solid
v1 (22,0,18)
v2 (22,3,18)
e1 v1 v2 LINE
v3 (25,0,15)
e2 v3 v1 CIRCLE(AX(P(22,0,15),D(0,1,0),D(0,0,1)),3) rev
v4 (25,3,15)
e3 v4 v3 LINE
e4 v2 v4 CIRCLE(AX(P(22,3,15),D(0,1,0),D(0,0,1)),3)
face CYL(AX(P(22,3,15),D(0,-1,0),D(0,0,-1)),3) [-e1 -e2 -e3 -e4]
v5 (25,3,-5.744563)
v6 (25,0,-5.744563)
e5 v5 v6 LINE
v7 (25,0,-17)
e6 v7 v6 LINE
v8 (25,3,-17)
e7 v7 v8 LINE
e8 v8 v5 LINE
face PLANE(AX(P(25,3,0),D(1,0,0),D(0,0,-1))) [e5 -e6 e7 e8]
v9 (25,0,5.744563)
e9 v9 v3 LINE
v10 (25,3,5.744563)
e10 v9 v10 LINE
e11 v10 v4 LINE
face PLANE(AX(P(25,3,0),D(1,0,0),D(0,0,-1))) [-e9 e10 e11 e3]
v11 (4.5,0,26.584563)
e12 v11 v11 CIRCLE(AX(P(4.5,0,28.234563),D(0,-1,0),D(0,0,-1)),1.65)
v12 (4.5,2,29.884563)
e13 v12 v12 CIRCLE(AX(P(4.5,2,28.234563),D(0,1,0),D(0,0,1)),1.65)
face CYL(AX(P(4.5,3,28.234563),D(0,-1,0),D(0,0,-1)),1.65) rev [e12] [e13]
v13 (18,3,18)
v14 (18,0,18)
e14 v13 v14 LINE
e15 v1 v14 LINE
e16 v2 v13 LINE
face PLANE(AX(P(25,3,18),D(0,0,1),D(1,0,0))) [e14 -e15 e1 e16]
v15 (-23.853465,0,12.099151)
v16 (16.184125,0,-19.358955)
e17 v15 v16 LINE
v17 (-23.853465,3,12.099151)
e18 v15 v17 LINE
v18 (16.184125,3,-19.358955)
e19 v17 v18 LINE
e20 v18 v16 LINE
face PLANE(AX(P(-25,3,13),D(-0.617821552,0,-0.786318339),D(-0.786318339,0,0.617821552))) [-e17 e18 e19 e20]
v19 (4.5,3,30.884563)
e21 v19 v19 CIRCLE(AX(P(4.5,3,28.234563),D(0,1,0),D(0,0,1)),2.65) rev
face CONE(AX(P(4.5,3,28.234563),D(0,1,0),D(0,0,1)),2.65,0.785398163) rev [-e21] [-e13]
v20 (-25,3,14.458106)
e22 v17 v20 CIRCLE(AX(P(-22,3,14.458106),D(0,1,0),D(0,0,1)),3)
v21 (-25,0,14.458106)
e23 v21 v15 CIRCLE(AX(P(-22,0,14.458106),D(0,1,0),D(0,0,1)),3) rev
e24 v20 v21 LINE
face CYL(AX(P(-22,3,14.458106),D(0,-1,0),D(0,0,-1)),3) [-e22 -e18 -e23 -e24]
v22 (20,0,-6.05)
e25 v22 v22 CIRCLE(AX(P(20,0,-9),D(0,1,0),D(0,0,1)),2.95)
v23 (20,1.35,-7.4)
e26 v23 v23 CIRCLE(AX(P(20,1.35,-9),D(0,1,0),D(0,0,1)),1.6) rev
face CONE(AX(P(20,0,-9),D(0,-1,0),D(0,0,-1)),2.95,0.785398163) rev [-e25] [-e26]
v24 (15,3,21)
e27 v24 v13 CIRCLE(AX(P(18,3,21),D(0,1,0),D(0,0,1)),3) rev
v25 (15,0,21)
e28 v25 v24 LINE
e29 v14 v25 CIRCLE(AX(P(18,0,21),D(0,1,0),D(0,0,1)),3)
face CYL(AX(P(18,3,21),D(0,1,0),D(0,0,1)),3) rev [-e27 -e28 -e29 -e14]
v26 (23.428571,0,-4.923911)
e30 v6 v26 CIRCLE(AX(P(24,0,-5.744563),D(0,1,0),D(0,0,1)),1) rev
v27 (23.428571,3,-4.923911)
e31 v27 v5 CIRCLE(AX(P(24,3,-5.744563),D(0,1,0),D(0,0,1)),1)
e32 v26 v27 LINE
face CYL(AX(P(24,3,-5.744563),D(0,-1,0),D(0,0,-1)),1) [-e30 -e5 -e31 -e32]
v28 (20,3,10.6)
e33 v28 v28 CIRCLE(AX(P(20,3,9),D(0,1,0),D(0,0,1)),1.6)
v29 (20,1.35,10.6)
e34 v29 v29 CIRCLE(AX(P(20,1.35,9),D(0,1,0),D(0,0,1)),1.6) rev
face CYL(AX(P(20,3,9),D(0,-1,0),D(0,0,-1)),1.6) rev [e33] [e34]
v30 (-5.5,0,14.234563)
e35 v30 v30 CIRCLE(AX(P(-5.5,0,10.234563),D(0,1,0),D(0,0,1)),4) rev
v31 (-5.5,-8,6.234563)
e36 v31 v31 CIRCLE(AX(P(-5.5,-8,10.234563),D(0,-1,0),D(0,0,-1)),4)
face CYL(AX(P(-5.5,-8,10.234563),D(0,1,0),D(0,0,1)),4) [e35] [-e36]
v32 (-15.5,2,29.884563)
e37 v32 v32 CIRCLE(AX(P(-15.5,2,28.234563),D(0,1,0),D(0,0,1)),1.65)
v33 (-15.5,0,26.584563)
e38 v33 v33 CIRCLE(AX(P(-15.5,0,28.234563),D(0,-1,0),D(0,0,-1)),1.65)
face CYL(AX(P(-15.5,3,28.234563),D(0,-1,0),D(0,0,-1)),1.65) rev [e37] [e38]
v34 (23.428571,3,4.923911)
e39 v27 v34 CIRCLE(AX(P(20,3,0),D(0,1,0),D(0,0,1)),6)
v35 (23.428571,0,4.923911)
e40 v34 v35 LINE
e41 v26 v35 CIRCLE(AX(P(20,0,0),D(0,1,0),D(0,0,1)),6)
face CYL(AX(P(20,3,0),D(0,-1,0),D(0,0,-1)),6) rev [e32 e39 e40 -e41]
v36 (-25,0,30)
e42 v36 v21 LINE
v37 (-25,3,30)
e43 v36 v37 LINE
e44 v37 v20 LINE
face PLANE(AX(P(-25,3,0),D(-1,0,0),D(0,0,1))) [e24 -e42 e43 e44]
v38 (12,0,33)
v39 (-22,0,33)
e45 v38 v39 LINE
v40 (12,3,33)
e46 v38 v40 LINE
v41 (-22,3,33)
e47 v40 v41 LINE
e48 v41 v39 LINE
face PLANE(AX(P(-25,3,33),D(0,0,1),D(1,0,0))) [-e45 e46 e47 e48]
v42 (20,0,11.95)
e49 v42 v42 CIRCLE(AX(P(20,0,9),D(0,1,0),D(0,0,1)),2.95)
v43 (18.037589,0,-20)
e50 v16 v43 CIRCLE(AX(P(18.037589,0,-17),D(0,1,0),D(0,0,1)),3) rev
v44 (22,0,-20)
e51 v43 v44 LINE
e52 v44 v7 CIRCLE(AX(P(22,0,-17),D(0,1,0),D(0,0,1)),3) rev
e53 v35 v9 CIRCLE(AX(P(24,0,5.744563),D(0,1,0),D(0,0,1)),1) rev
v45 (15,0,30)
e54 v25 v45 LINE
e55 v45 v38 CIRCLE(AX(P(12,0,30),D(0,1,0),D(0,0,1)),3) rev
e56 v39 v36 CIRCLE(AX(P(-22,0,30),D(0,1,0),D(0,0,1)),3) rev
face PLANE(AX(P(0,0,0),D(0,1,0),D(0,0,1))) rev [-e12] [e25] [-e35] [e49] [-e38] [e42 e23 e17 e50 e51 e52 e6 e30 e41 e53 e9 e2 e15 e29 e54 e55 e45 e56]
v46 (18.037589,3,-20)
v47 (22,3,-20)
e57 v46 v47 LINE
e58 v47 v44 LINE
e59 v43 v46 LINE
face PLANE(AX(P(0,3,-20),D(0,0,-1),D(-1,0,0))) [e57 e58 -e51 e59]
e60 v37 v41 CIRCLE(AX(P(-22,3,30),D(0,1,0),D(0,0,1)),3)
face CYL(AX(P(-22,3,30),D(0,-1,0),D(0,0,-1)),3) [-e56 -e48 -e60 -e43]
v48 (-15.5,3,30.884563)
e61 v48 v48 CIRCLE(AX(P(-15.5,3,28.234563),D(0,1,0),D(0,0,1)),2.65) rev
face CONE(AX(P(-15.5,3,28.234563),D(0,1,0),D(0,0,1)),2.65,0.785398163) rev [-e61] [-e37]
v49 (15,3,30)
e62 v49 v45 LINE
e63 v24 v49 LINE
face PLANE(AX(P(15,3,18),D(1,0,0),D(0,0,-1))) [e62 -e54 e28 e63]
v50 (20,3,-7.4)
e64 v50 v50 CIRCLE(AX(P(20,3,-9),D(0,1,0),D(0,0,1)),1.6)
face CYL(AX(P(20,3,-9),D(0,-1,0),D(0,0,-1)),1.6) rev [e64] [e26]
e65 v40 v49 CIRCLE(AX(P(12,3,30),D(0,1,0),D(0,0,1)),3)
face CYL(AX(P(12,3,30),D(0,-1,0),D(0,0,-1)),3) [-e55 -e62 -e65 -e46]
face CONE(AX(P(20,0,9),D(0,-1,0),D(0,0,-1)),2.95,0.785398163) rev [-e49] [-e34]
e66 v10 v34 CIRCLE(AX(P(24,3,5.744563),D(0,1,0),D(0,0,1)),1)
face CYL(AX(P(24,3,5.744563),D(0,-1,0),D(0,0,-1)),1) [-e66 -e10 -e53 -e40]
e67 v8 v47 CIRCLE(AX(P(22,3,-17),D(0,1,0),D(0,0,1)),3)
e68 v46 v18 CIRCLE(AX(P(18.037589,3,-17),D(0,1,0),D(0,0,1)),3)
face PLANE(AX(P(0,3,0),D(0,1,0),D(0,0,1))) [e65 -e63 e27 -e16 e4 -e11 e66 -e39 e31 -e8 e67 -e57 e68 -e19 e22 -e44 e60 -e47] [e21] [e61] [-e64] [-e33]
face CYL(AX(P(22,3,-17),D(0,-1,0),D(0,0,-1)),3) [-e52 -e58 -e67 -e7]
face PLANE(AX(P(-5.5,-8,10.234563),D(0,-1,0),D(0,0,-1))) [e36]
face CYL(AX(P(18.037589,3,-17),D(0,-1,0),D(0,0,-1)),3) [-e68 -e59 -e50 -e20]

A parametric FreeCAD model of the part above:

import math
import FreeCAD as App
import Part
import Sketcher
from FreeCAD import Vector


def edges_at(feature, points):
    """Names of the edges that pass closest to the given points."""
    edges = feature.Shape.Edges
    near = lambda p: min(range(len(edges)), key=lambda i: edges[i].distToShape(Part.Vertex(*p))[0])
    return sorted({f"Edge{near(p) + 1}" for p in points})

doc = App.newDocument("Part")
body = doc.addObject("PartDesign::Body", "Body")

# Sketch on XZ plane
sketch1 = body.newObject("Sketcher::SketchObject", "Sketch")
sketch1.AttachmentSupport = (doc.getObject("XZ_Plane"), [""])
sketch1.MapMode = "FlatFace"
sketch1.addGeometry([
    Part.LineSegment(Vector(25, -20, 0), Vector(-25, -20, 0)),  # 0
    Part.LineSegment(Vector(-25, -20, 0), Vector(-25, 20, 0)),  # 1
    Part.LineSegment(Vector(-25, 20, 0), Vector(25, 20, 0)),  # 2
    Part.LineSegment(Vector(25, 20, 0), Vector(25, 3.3, 0)),  # 3
    Part.ArcOfCircle(Part.Circle(Vector(20, 0, 0), Vector(0, 0, 1), 6), math.radians(34), math.radians(326)),  # 4
    Part.LineSegment(Vector(25, -3.3, 0), Vector(25, -20, 0)),  # 5
    Part.Circle(Vector(20, 9, 0), Vector(0, 0, 1), 1.6),  # 6
    Part.Circle(Vector(20, -9, 0), Vector(0, 0, 1), 1.6),  # 7
], False)
sketch1.addConstraint([
    Sketcher.Constraint("Coincident", 0, 2, 1, 1),
    Sketcher.Constraint("Coincident", 1, 2, 2, 1),
    Sketcher.Constraint("Coincident", 2, 2, 3, 1),
    Sketcher.Constraint("Coincident", 3, 2, 4, 1),
    Sketcher.Constraint("Coincident", 4, 2, 5, 1),
    Sketcher.Constraint("Coincident", 5, 2, 0, 1),
    Sketcher.Constraint("Horizontal", 0),
    Sketcher.Constraint("Vertical", 1),
    Sketcher.Constraint("Horizontal", 2),
    Sketcher.Constraint("Vertical", 3),
    Sketcher.Constraint("Vertical", 5),
    Sketcher.Constraint("Equal", 6, 7),
    Sketcher.Constraint("Symmetric", 0, 2, 2, 2, -1, 1),
    Sketcher.Constraint("Symmetric", 6, 3, 7, 3, -1),
    Sketcher.Constraint("Symmetric", 3, 2, 4, 2, -1),
    Sketcher.Constraint("Vertical", 4, 3, 6, 3),
    Sketcher.Constraint("Radius", 4, 6.0),
    Sketcher.Constraint("Diameter", 6, 3.2),
    Sketcher.Constraint("DistanceX", 0, 2, 0, 1, 50.0),
    Sketcher.Constraint("DistanceY", 1, 1, 1, 2, 40.0),
    Sketcher.Constraint("DistanceX", -1, 1, 4, 3, 20.0),
    Sketcher.Constraint("DistanceY", -1, 1, 6, 3, 9.0),
])
pad1 = body.newObject("PartDesign::Pad", "Pad")
pad1.Profile = sketch1
pad1.Length = 3
pad1.Reversed = True
doc.recompute()

fillet = body.newObject("PartDesign::Fillet", "Fillet")
fillet.Base = (pad1, edges_at(pad1, [(25, 1.5, 3.317), (25, 1.5, -3.317)]))
fillet.Radius = 1
doc.recompute()

chamfer = body.newObject("PartDesign::Chamfer", "Chamfer")
chamfer.Base = (fillet, edges_at(fillet, [(18.4, 0, -9), (18.4, 0, 9)]))
chamfer.Size = 1.35

# Sketch on XZ plane
sketch2 = body.newObject("Sketcher::SketchObject", "Sketch001")
sketch2.AttachmentSupport = (doc.getObject("XZ_Plane"), [""])
sketch2.MapMode = "FlatFace"
sketch2.addGeometry([
    Part.LineSegment(Vector(-25, 33, 0), Vector(-25, 20, 0)),
    Part.LineSegment(Vector(-25, 20, 0), Vector(25, 20, 0)),
    Part.LineSegment(Vector(25, 20, 0), Vector(25, 33, 0)),
    Part.LineSegment(Vector(25, 33, 0), Vector(-25, 33, 0)),
], False)
sketch2.addConstraint([
    Sketcher.Constraint("Coincident", 0, 2, 1, 1),
    Sketcher.Constraint("Coincident", 1, 2, 2, 1),
    Sketcher.Constraint("Coincident", 2, 2, 3, 1),
    Sketcher.Constraint("Coincident", 3, 2, 0, 1),
    Sketcher.Constraint("Vertical", 0),
    Sketcher.Constraint("Horizontal", 1),
    Sketcher.Constraint("Vertical", 2),
    Sketcher.Constraint("Horizontal", 3),
    Sketcher.Constraint("DistanceX", 1, 1, 1, 2, 50.0),
    Sketcher.Constraint("DistanceY", 0, 2, 0, 1, 13.0),
    Sketcher.Constraint("DistanceX", 0, 2, -1, 1, 25.0),
    Sketcher.Constraint("DistanceY", -1, 1, 0, 2, 20.0),
])
pad2 = body.newObject("PartDesign::Pad", "Pad001")
pad2.Profile = sketch2
pad2.Length = 3
pad2.Reversed = True

# Sketch on XZ plane
sketch3 = body.newObject("Sketcher::SketchObject", "Sketch002")
sketch3.AttachmentSupport = (doc.getObject("XZ_Plane"), [""])
sketch3.MapMode = "FlatFace"
sketch3.addGeometry([
    Part.Circle(Vector(-15.5, 28.2, 0), Vector(0, 0, 1), 1.6),
    Part.Circle(Vector(4.5, 28.2, 0), Vector(0, 0, 1), 1.6),
], False)
sketch3.addConstraint([
    Sketcher.Constraint("Equal", 0, 1),
    Sketcher.Constraint("Horizontal", 0, 3, 1, 3),
    Sketcher.Constraint("Diameter", 0, 3.3),
    Sketcher.Constraint("DistanceX", 0, 3, 1, 3, 20.0),
    Sketcher.Constraint("DistanceX", 0, 3, -1, 1, 15.5),
    Sketcher.Constraint("DistanceY", -1, 1, 0, 3, 28.234563),
])
pocket1 = body.newObject("PartDesign::Pocket", "Pocket")
pocket1.Profile = sketch3
pocket1.Type = "ThroughAll"

# Sketch on XZ plane
sketch4 = body.newObject("Sketcher::SketchObject", "Sketch003")
sketch4.AttachmentSupport = (doc.getObject("XZ_Plane"), [""])
sketch4.MapMode = "FlatFace"
sketch4.addGeometry([
    Part.LineSegment(Vector(-25, 13, 0), Vector(-25, -20, 0)),  # 0
    Part.LineSegment(Vector(-25, -20, 0), Vector(17, -20, 0)),  # 1
    Part.LineSegment(Vector(17, -20, 0), Vector(-25, 13, 0)),  # 2
    Part.LineSegment(Vector(15, 33, 0), Vector(15, 18, 0)),  # 3
    Part.LineSegment(Vector(15, 18, 0), Vector(25, 18, 0)),  # 4
    Part.LineSegment(Vector(25, 18, 0), Vector(25, 33, 0)),  # 5
    Part.LineSegment(Vector(25, 33, 0), Vector(15, 33, 0)),  # 6
], False)
sketch4.addConstraint([
    Sketcher.Constraint("Coincident", 0, 2, 1, 1),
    Sketcher.Constraint("Coincident", 1, 2, 2, 1),
    Sketcher.Constraint("Coincident", 2, 2, 0, 1),
    Sketcher.Constraint("Coincident", 3, 2, 4, 1),
    Sketcher.Constraint("Coincident", 4, 2, 5, 1),
    Sketcher.Constraint("Coincident", 5, 2, 6, 1),
    Sketcher.Constraint("Coincident", 6, 2, 3, 1),
    Sketcher.Constraint("Vertical", 0),
    Sketcher.Constraint("Horizontal", 1),
    Sketcher.Constraint("Vertical", 3),
    Sketcher.Constraint("Horizontal", 4),
    Sketcher.Constraint("Vertical", 5),
    Sketcher.Constraint("Horizontal", 6),
    Sketcher.Constraint("DistanceX", 1, 1, 1, 2, 42.0),
    Sketcher.Constraint("DistanceX", 4, 1, 4, 2, 10.0),
    Sketcher.Constraint("DistanceY", 0, 2, 0, 1, 33.0),
    Sketcher.Constraint("DistanceY", 3, 2, 3, 1, 15.0),
    Sketcher.Constraint("DistanceX", 0, 2, -1, 1, 25.0),
    Sketcher.Constraint("DistanceY", 0, 2, -1, 1, 20.0),
    Sketcher.Constraint("DistanceX", -1, 1, 3, 2, 15.0),
    Sketcher.Constraint("DistanceY", -1, 1, 3, 2, 18.0),
])
pocket2 = body.newObject("PartDesign::Pocket", "Pocket001")
pocket2.Profile = sketch4
pocket2.Type = "ThroughAll"
doc.recompute()

fillet2 = body.newObject("PartDesign::Fillet", "Fillet001")
fillet2.Base = (pocket2, edges_at(pocket2, [
    (25, 1.5, -20),
    (-25, 1.5, 33),
    (-25, 1.5, 13),
    (17, 1.5, -20),
    (15, 1.5, 18),
    (15, 1.5, 33),
    (25, 1.5, 18),
]))
fillet2.Radius = 3
doc.recompute()

chamfer2 = body.newObject("PartDesign::Chamfer", "Chamfer001")
chamfer2.Base = (fillet2, edges_at(fillet2, [(-17.15, 3, 28.235), (2.85, 3, 28.235)]))
chamfer2.Size = 1

# Sketch on XZ plane
sketch5 = body.newObject("Sketcher::SketchObject", "Sketch004")
sketch5.AttachmentSupport = (doc.getObject("XZ_Plane"), [""])
sketch5.MapMode = "FlatFace"
sketch5.addGeometry(Part.Circle(Vector(-5.5, 10.2, 0), Vector(0, 0, 1), 4), False)
sketch5.addConstraint([
    Sketcher.Constraint("Diameter", 0, 8.0),
    Sketcher.Constraint("DistanceX", 0, 3, -1, 1, 5.5),
    Sketcher.Constraint("DistanceY", -1, 1, 0, 3, 10.234563),
])
pad3 = body.newObject("PartDesign::Pad", "Pad002")
pad3.Profile = sketch5
pad3.Length = 8

doc.recompute()
